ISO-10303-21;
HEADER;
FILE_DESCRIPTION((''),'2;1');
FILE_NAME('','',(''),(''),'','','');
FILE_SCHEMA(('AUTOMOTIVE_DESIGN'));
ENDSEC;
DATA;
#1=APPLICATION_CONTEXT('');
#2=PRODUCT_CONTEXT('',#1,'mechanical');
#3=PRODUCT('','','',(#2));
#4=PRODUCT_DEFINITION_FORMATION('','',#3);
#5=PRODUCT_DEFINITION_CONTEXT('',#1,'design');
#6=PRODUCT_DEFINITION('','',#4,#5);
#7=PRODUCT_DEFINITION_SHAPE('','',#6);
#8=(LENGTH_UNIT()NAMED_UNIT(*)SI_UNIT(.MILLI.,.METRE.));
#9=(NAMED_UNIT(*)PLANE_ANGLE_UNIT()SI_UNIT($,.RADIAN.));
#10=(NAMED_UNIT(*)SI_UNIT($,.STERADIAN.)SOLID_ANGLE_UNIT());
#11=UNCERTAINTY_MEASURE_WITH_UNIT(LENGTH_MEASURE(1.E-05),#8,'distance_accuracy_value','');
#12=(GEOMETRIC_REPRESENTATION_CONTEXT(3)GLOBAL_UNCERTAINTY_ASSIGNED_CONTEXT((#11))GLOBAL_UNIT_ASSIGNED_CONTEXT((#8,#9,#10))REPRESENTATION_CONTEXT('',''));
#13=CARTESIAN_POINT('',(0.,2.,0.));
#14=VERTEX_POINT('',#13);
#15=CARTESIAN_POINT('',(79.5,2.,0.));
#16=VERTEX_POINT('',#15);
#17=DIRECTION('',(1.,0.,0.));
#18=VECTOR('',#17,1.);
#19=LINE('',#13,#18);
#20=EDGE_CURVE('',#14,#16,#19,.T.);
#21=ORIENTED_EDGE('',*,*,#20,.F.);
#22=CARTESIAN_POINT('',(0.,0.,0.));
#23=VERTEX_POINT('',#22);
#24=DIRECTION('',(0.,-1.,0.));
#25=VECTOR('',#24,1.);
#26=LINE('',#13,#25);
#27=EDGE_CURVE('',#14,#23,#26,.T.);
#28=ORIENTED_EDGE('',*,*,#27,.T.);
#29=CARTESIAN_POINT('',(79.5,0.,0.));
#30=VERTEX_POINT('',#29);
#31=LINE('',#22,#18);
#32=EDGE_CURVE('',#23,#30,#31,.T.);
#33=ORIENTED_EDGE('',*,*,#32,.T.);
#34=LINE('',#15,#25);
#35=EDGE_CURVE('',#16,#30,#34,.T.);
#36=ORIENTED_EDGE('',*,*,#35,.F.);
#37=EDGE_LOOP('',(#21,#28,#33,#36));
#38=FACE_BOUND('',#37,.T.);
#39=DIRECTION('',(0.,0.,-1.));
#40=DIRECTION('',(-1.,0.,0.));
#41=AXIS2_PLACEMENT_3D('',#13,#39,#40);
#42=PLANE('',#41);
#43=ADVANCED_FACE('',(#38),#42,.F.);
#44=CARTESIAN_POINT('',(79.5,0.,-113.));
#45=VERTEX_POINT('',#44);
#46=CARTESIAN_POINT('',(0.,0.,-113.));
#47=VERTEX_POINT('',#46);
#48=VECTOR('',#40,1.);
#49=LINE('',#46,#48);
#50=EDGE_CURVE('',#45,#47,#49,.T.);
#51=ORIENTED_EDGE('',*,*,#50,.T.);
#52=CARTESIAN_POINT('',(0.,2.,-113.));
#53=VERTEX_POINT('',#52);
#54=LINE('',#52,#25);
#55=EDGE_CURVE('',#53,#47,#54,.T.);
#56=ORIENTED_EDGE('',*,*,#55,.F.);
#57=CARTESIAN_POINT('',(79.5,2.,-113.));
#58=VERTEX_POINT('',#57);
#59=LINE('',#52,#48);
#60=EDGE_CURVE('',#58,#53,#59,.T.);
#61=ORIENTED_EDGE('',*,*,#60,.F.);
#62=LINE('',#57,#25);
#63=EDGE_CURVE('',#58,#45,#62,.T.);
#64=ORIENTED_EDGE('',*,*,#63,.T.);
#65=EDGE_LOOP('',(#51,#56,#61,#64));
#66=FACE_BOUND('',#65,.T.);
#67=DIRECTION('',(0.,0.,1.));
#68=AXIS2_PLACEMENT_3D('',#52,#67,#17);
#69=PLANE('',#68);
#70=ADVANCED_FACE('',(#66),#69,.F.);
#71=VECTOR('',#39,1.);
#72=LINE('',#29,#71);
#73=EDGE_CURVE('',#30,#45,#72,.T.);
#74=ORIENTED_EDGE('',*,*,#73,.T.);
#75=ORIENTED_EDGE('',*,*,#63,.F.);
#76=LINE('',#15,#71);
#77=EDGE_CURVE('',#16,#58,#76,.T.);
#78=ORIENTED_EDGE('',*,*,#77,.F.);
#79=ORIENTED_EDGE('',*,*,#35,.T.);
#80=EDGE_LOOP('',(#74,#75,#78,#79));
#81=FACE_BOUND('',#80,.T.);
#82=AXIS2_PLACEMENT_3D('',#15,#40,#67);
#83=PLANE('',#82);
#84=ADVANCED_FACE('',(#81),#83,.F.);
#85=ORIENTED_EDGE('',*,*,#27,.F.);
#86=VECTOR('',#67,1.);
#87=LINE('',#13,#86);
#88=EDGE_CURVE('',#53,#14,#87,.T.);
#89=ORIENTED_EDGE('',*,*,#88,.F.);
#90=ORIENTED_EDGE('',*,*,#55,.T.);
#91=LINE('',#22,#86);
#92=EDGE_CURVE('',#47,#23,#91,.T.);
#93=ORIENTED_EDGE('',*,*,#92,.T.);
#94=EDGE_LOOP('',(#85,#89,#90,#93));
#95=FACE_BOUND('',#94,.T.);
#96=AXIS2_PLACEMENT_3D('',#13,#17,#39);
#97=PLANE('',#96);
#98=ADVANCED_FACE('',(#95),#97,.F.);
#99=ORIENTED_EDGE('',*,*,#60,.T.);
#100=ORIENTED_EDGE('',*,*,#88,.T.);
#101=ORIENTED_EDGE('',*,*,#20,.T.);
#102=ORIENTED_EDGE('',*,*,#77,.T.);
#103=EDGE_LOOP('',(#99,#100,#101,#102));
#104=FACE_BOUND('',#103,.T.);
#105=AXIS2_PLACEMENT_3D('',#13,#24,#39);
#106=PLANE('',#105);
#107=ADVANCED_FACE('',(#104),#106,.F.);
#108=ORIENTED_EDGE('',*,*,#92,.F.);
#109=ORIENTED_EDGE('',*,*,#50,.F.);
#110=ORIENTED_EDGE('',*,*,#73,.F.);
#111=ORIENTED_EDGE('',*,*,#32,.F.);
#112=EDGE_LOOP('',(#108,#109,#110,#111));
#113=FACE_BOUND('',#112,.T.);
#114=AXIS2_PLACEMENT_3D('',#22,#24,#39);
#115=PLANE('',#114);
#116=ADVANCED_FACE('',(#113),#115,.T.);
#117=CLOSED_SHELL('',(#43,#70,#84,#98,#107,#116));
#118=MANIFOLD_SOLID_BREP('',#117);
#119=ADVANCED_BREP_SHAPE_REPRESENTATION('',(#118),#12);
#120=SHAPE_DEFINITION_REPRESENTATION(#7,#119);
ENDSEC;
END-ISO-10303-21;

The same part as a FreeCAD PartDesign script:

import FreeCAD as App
import Part
import Sketcher
from FreeCAD import Vector
Q = App.Units.Quantity


def add_polygon(sketch, points):
    """Adds a closed chain of lines whose ends are joined by coincident constraints."""
    first, n = sketch.GeometryCount, len(points)
    for a, b in zip(points, points[1:] + points[:1]):
        sketch.addGeometry(Part.LineSegment(App.Vector(*a, 0), App.Vector(*b, 0)), False)
    for i in range(n):
        sketch.addConstraint(Sketcher.Constraint("Coincident", first + i, 2, first + (i + 1) % n, 1))

doc = App.newDocument("Part")
body = doc.addObject("PartDesign::Body", "Body")

# Sketch on XZ plane
sketch1 = body.newObject("Sketcher::SketchObject", "Sketch")
sketch1.AttachmentSupport = (doc.getObject("XZ_Plane"), [""])
sketch1.MapMode = "FlatFace"
add_polygon(sketch1, [(0, -113), (0, 0), (80, 0), (80, -113)])  # lines 0-3
sketch1.addConstraint(Sketcher.Constraint("Vertical", 0))
sketch1.addConstraint(Sketcher.Constraint("Horizontal", 1))
sketch1.addConstraint(Sketcher.Constraint("Vertical", 2))
sketch1.addConstraint(Sketcher.Constraint("Horizontal", 3))
sketch1.addConstraint(Sketcher.Constraint("Coincident", 0, 2, -1, 1))
sketch1.addConstraint(Sketcher.Constraint("DistanceY", 0, 1, 0, 2, Q("113 mm")))
sketch1.addConstraint(Sketcher.Constraint("DistanceX", 1, 1, 1, 2, Q("79.5 mm")))
pad1 = body.newObject("PartDesign::Pad", "Pad")
pad1.Profile = sketch1
pad1.Length = 2
pad1.Reversed = True

doc.recompute()
